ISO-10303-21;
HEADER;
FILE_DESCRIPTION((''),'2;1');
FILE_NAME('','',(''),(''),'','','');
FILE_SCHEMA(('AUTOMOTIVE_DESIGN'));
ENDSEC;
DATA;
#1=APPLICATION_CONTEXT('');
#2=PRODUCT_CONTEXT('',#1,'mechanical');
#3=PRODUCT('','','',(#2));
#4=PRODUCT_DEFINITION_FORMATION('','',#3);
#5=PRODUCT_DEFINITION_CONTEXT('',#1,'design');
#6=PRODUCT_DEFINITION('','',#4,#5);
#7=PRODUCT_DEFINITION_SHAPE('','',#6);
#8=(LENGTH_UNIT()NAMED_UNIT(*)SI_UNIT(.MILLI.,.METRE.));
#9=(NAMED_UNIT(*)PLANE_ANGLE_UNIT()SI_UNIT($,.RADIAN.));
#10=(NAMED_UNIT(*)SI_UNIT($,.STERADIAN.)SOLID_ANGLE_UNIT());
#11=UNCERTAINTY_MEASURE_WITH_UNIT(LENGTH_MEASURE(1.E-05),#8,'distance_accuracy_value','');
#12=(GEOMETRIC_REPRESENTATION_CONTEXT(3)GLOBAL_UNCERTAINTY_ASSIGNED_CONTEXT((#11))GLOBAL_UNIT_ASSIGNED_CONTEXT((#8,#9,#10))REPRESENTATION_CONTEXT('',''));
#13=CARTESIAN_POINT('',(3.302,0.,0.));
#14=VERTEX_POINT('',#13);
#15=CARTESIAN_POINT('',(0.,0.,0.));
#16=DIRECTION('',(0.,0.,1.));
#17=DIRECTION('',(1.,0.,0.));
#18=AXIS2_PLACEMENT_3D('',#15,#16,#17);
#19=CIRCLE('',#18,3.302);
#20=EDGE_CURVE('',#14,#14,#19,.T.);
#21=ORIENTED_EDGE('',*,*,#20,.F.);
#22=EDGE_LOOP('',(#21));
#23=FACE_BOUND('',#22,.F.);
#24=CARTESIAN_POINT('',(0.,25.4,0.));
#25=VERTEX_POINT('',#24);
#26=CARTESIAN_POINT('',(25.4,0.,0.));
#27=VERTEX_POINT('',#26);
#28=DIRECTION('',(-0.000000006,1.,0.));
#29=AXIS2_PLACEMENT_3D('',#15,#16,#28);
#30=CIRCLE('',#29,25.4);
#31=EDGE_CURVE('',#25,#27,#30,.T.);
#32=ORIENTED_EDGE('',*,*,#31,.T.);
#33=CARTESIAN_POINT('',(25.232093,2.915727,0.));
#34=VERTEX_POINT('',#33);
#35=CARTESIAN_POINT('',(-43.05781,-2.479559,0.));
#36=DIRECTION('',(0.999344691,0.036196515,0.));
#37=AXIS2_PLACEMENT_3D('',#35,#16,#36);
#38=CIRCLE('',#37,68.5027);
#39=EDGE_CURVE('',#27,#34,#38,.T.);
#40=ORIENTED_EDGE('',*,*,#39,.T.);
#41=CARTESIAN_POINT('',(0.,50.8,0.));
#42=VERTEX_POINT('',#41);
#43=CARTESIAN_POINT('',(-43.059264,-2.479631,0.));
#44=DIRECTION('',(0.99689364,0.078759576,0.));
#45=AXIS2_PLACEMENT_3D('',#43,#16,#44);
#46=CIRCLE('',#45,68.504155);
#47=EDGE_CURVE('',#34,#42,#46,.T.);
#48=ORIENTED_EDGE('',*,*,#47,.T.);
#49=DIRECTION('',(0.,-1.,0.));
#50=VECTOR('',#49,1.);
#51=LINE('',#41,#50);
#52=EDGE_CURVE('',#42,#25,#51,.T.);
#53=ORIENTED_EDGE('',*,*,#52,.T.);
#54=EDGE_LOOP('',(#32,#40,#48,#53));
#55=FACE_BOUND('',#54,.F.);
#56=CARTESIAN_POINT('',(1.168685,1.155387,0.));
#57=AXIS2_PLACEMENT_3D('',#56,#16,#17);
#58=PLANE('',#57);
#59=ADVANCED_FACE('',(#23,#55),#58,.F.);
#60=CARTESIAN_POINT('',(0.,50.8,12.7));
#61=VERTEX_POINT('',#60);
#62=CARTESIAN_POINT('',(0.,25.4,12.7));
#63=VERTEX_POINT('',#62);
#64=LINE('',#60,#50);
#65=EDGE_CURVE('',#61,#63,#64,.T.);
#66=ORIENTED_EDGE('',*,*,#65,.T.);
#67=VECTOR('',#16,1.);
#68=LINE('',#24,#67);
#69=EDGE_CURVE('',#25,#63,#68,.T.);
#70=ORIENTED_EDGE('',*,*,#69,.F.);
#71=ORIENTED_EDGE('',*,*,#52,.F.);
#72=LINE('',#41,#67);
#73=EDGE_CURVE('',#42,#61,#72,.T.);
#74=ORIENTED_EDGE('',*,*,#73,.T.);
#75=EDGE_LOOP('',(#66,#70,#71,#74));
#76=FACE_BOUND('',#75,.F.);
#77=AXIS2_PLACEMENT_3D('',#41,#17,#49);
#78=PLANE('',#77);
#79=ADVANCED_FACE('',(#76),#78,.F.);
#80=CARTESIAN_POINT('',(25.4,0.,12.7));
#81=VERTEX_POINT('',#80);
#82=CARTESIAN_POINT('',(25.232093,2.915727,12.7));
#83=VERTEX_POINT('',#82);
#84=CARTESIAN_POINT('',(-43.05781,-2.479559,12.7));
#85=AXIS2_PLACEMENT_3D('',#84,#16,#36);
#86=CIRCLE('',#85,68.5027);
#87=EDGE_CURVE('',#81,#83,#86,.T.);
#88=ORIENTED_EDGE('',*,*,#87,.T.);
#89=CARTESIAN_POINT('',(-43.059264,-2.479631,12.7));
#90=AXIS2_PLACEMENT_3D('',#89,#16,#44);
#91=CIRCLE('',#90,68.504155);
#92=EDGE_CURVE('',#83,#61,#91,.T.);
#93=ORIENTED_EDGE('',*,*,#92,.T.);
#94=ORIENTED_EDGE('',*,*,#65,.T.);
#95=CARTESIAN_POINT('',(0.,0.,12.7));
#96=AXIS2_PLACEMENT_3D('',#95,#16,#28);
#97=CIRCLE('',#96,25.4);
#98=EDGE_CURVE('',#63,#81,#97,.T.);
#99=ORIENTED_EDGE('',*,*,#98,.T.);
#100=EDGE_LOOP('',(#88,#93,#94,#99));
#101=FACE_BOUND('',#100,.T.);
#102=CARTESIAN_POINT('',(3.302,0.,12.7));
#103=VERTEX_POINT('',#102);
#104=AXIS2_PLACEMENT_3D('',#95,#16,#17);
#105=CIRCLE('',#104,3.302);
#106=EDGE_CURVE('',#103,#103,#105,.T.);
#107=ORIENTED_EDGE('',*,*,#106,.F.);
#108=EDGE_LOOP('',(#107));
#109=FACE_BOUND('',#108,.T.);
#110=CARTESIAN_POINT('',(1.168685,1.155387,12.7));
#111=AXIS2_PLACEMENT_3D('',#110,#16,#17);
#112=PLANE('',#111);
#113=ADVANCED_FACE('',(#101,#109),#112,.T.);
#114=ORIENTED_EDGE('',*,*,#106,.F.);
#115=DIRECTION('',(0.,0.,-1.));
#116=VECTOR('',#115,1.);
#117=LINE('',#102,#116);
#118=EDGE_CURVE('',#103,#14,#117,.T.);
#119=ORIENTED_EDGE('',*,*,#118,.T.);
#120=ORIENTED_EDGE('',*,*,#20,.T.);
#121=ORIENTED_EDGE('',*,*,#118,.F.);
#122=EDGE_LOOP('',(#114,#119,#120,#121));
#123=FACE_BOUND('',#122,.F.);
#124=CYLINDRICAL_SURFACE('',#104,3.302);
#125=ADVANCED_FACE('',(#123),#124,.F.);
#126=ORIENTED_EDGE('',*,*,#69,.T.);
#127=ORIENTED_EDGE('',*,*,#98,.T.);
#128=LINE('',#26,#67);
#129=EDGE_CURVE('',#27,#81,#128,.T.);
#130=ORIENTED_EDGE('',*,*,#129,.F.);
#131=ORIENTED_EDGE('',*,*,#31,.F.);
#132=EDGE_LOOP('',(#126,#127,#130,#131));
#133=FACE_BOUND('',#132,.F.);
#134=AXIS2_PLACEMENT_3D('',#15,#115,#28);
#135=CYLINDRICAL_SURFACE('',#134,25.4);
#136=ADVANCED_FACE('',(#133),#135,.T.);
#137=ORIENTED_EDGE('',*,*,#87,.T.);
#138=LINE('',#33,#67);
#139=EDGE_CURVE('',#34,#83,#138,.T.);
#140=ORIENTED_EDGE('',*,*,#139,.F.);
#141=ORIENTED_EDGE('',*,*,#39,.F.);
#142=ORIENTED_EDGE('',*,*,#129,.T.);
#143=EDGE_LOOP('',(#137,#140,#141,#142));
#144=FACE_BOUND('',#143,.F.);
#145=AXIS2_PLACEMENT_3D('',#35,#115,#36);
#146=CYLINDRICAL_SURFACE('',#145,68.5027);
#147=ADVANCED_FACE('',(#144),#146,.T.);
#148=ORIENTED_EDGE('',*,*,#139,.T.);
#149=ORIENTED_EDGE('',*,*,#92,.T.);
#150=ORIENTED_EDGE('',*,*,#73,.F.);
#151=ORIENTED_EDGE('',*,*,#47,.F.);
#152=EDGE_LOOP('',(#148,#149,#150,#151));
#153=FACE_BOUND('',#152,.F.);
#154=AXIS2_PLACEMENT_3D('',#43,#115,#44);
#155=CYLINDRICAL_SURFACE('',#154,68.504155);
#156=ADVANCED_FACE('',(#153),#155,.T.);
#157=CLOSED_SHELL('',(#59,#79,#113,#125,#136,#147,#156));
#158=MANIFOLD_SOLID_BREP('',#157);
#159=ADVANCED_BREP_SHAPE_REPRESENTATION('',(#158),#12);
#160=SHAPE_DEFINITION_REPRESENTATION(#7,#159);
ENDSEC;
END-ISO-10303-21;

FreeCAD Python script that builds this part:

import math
import FreeCAD as App
import Part
import Sketcher
Q = App.Units.Quantity

doc = App.newDocument("Part")
body = doc.addObject("PartDesign::Body", "Body")

# Sketch on XY plane
sketch1 = body.newObject("Sketcher::SketchObject", "Sketch")
sketch1.AttachmentSupport = (doc.getObject("XY_Plane"), [""])
sketch1.MapMode = "FlatFace"
sketch1.addGeometry([
    Part.ArcOfCircle(Part.Circle(App.Vector(0, 0, 0), App.Vector(0, 0, 1), 25.4), math.radians(90), math.radians(360)),
    Part.ArcOfCircle(Part.Circle(App.Vector(-43.05781, -2.479559, 0), App.Vector(0, 0, 1), 68.5027), math.radians(2.074361), math.radians(4.517305)),
    Part.ArcOfCircle(Part.Circle(App.Vector(-43.059264, -2.479631, 0), App.Vector(0, 0, 1), 68.504155), math.radians(4.51727), math.radians(51.055724)),
    Part.LineSegment(App.Vector(0, 50.8, 0), App.Vector(0, 25.4, 0)),
], False)
sketch1.addConstraint([
    Sketcher.Constraint("Coincident", 0, 2, 1, 1),
    Sketcher.Constraint("Coincident", 1, 2, 2, 1),
    Sketcher.Constraint("Coincident", 2, 2, 3, 1),
    Sketcher.Constraint("Coincident", 3, 2, 0, 1),
    Sketcher.Constraint("Vertical", 3),
    Sketcher.Constraint("Coincident", 0, 3, -1, 1),
    Sketcher.Constraint("PointOnObject", 0, 2, -1),
    Sketcher.Constraint("PointOnObject", 2, 2, -2),
    Sketcher.Constraint("Radius", 0, Q("1 in")),
    Sketcher.Constraint("DistanceY", 3, 2, 3, 1, Q("1 in")),
    Sketcher.Constraint("Radius", 1, Q("68.5027 mm")),
    Sketcher.Constraint("Radius", 2, Q("68.504155 mm")),
    Sketcher.Constraint("DistanceX", 1, 3, -1, 1, Q("43.05781 mm")),
    Sketcher.Constraint("DistanceY", 2, 3, 1, 2, Q("5.395358 mm")),
])
pad1 = body.newObject("PartDesign::Pad", "Pad")
pad1.Profile = sketch1
pad1.Length = Q("0.5 in")

# Sketch on XY plane
sketch2 = body.newObject("Sketcher::SketchObject", "Sketch001")
sketch2.AttachmentSupport = (doc.getObject("XY_Plane"), [""])
sketch2.MapMode = "FlatFace"
sketch2.AttachmentOffset = App.Placement(App.Vector(0, 0, 0.5 * 25.4), App.Rotation())
sketch2.addGeometry(Part.Circle(App.Vector(0, 0, 0), App.Vector(0, 0, 1), 3.3), False)
sketch2.addConstraint([
    Sketcher.Constraint("Coincident", 0, 3, -1, 1),
    Sketcher.Constraint("Diameter", 0, Q("0.26 in")),
])
pocket1 = body.newObject("PartDesign::Pocket", "Pocket")
pocket1.Profile = sketch2
pocket1.Length = Q("1 in")

doc.recompute()
